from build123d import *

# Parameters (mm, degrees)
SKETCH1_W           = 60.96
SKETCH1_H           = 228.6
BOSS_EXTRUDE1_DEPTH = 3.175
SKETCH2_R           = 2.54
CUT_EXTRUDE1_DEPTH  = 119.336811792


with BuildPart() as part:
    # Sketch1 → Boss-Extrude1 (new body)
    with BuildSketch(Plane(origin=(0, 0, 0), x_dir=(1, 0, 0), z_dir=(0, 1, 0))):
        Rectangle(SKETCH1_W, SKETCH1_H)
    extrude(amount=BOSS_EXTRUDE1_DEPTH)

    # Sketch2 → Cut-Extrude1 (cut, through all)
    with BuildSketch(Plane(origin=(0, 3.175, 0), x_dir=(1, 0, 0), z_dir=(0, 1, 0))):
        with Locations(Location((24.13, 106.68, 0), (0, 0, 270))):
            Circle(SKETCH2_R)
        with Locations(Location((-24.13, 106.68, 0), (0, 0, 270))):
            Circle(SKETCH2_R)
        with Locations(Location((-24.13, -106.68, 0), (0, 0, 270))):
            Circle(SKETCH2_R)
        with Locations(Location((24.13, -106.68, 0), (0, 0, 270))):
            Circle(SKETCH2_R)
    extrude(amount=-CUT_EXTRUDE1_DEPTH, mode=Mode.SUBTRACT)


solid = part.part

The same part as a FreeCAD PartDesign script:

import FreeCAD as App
import Part
import Sketcher
from FreeCAD import Vector
Q = App.Units.Quantity

doc = App.newDocument("Part")
params = doc.addObject("Spreadsheet::Sheet", "Params")
for row, (alias, value) in enumerate([
    ("sketch1_height", "9 in"),
    ("sketch1_width", "2.4 in"),
    ("pad1_length", "0.125 in"),
    ("sketch2_diameter", "0.2 in"),
], start=1):
    params.set(f"A{row}", alias)
    params.set(f"B{row}", "=" + value)
    params.setAlias(f"B{row}", alias)

body = doc.addObject("PartDesign::Body", "Body")

sketch1 = body.newObject("Sketcher::SketchObject", "Sketch")
sketch1.AttachmentSupport = (doc.getObject("XZ_Plane"), [""])
sketch1.MapMode = "FlatFace"
sketch1.addGeometry([
    Part.LineSegment(Vector(-30, -114, 0), Vector(-30, 114, 0)),
    Part.LineSegment(Vector(-30, 114, 0), Vector(30, 114, 0)),
    Part.LineSegment(Vector(30, 114, 0), Vector(30, -114, 0)),
    Part.LineSegment(Vector(30, -114, 0), Vector(-30, -114, 0)),
], False)
sketch1.addConstraint([
    Sketcher.Constraint("Coincident", 0, 2, 1, 1),
    Sketcher.Constraint("Coincident", 1, 2, 2, 1),
    Sketcher.Constraint("Coincident", 2, 2, 3, 1),
    Sketcher.Constraint("Coincident", 3, 2, 0, 1),
    Sketcher.Constraint("Vertical", 0),
    Sketcher.Constraint("Horizontal", 1),
    Sketcher.Constraint("Vertical", 2),
    Sketcher.Constraint("Horizontal", 3),
    Sketcher.Constraint("Symmetric", 0, 2, 2, 2, -1, 1),
    Sketcher.Constraint("DistanceY", 0, 1, 0, 2, Q("9 in")),
    Sketcher.Constraint("DistanceX", 1, 1, 1, 2, Q("2.4 in")),
])
sketch1.setExpression("Constraints[9]", "Params.sketch1_height")
sketch1.setExpression("Constraints[10]", "Params.sketch1_width")
pad1 = body.newObject("PartDesign::Pad", "Pad")
pad1.Profile = sketch1
pad1.setExpression("Length", "Params.pad1_length")
pad1.Reversed = True

sketch2 = body.newObject("Sketcher::SketchObject", "Sketch001")
sketch2.AttachmentSupport = (doc.getObject("XZ_Plane"), [""])
sketch2.MapMode = "FlatFace"
sketch2.AttachmentOffset = App.Placement(Vector(0, 0, -0.125 * 25.4), App.Rotation())
sketch2.addGeometry([
    Part.Circle(Vector(24.1, -106.7, 0), Vector(0, 0, 1), 2.5),
    Part.Circle(Vector(-24.1, -106.7, 0), Vector(0, 0, 1), 2.5),
    Part.Circle(Vector(-24.1, 106.7, 0), Vector(0, 0, 1), 2.5),
    Part.Circle(Vector(24.1, 106.7, 0), Vector(0, 0, 1), 2.5),
], False)
sketch2.addConstraint([
    Sketcher.Constraint("Equal", 0, 1),
    Sketcher.Constraint("Equal", 1, 2),
    Sketcher.Constraint("Equal", 2, 3),
    Sketcher.Constraint("Symmetric", 0, 3, 2, 3, -1, 1),
    Sketcher.Constraint("Symmetric", 1, 3, 3, 3, -1, 1),
    Sketcher.Constraint("Symmetric", 0, 3, 1, 3, -2),
    Sketcher.Constraint("Diameter", 0, Q("0.2 in")),
    Sketcher.Constraint("DistanceY", 0, 3, -1, 1, Q("4.2 in")),
    Sketcher.Constraint("DistanceX", 1, 3, 0, 3, Q("1.9 in")),
])
sketch2.setExpression("Constraints[6]", "Params.sketch2_diameter")
pocket1 = body.newObject("PartDesign::Pocket", "Pocket")
pocket1.Profile = sketch2
pocket1.Type = "ThroughAll"
pocket1.Reversed = True

doc.recompute()
